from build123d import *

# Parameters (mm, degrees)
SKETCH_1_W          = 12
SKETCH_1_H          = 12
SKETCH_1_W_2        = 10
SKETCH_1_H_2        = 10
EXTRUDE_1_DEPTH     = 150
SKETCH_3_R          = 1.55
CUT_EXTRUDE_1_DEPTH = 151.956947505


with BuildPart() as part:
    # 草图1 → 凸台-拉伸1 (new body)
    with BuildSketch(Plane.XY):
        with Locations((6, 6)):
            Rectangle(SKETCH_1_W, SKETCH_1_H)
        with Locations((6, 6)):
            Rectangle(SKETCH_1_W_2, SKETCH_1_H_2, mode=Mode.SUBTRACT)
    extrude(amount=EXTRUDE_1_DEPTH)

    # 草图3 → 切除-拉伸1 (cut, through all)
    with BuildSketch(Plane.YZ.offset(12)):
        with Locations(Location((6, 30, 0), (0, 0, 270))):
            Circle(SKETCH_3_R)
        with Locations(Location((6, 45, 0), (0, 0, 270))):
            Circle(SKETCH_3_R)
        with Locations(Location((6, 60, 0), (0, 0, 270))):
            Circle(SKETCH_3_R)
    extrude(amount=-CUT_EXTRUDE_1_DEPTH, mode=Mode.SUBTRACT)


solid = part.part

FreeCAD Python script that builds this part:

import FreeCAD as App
import Part
import Sketcher

V = App.Vector

doc = App.newDocument("Part")
body = doc.addObject("PartDesign::Body", "Body")

# Sketch on XY plane
sketch1 = body.newObject("Sketcher::SketchObject", "Sketch")
sketch1.AttachmentSupport = (doc.getObject("XY_Plane"), [""])
sketch1.MapMode = "FlatFace"
sketch1.addGeometry(Part.LineSegment(V(0, 12, 0), V(0, 0, 0)), False)
sketch1.addGeometry(Part.LineSegment(V(0, 0, 0), V(12, 0, 0)), False)
sketch1.addGeometry(Part.LineSegment(V(12, 0, 0), V(12, 12, 0)), False)
sketch1.addGeometry(Part.LineSegment(V(12, 12, 0), V(0, 12, 0)), False)
sketch1.addGeometry(Part.LineSegment(V(11, 1, 0), V(1, 1, 0)), False)
sketch1.addGeometry(Part.LineSegment(V(1, 1, 0), V(1, 11, 0)), False)
sketch1.addGeometry(Part.LineSegment(V(1, 11, 0), V(11, 11, 0)), False)
sketch1.addGeometry(Part.LineSegment(V(11, 11, 0), V(11, 1, 0)), False)
sketch1.addConstraint(Sketcher.Constraint("Coincident", 0, 2, 1, 1))
sketch1.addConstraint(Sketcher.Constraint("Coincident", 1, 2, 2, 1))
sketch1.addConstraint(Sketcher.Constraint("Coincident", 2, 2, 3, 1))
sketch1.addConstraint(Sketcher.Constraint("Coincident", 3, 2, 0, 1))
sketch1.addConstraint(Sketcher.Constraint("Coincident", 4, 2, 5, 1))
sketch1.addConstraint(Sketcher.Constraint("Coincident", 5, 2, 6, 1))
sketch1.addConstraint(Sketcher.Constraint("Coincident", 6, 2, 7, 1))
sketch1.addConstraint(Sketcher.Constraint("Coincident", 7, 2, 4, 1))
sketch1.addConstraint(Sketcher.Constraint("Vertical", 0))
sketch1.addConstraint(Sketcher.Constraint("Horizontal", 1))
sketch1.addConstraint(Sketcher.Constraint("Vertical", 2))
sketch1.addConstraint(Sketcher.Constraint("Horizontal", 3))
sketch1.addConstraint(Sketcher.Constraint("Horizontal", 4))
sketch1.addConstraint(Sketcher.Constraint("Vertical", 5))
sketch1.addConstraint(Sketcher.Constraint("Horizontal", 6))
sketch1.addConstraint(Sketcher.Constraint("Vertical", 7))
sketch1.addConstraint(Sketcher.Constraint("Coincident", 0, 2, -1, 1))
sketch1.addConstraint(Sketcher.Constraint("Equal", 3, 0))
sketch1.addConstraint(Sketcher.Constraint("Equal", 6, 5))
sketch1.addConstraint(Sketcher.Constraint("DistanceX", 1, 1, 1, 2, 12.0))
sketch1.addConstraint(Sketcher.Constraint("DistanceX", 4, 2, 4, 1, 10.0))
sketch1.addConstraint(Sketcher.Constraint("DistanceX", -1, 1, 4, 2, 1.0))
sketch1.addConstraint(Sketcher.Constraint("DistanceY", -1, 1, 4, 2, 1.0))
pad1 = body.newObject("PartDesign::Pad", "Pad")
pad1.Profile = sketch1
pad1.Length = 150

# Sketch on YZ plane
sketch2 = body.newObject("Sketcher::SketchObject", "Sketch001")
sketch2.AttachmentSupport = (doc.getObject("YZ_Plane"), [""])
sketch2.MapMode = "FlatFace"
sketch2.AttachmentOffset = App.Placement(V(0, 0, 12), App.Rotation())
sketch2.addGeometry(Part.Circle(V(6, 30, 0), V(0, 0, 1), 1.55), False)
sketch2.addGeometry(Part.Circle(V(6, 45, 0), V(0, 0, 1), 1.55), False)
sketch2.addGeometry(Part.Circle(V(6, 60, 0), V(0, 0, 1), 1.55), False)
sketch2.addConstraint(Sketcher.Constraint("Equal", 0, 1))
sketch2.addConstraint(Sketcher.Constraint("Equal", 1, 2))
sketch2.addConstraint(Sketcher.Constraint("Vertical", 0, 3, 1, 3))
sketch2.addConstraint(Sketcher.Constraint("Vertical", 1, 3, 2, 3))
sketch2.addConstraint(Sketcher.Constraint("Diameter", 0, 3.1))
sketch2.addConstraint(Sketcher.Constraint("DistanceX", -1, 1, 0, 3, 6.0))
sketch2.addConstraint(Sketcher.Constraint("DistanceY", -1, 1, 0, 3, 30.0))
sketch2.addConstraint(Sketcher.Constraint("DistanceY", -1, 1, 1, 3, 45.0))
sketch2.addConstraint(Sketcher.Constraint("DistanceY", -1, 1, 2, 3, 60.0))
pocket1 = body.newObject("PartDesign::Pocket", "Pocket")
pocket1.Profile = sketch2
pocket1.Type = "ThroughAll"

doc.recompute()
